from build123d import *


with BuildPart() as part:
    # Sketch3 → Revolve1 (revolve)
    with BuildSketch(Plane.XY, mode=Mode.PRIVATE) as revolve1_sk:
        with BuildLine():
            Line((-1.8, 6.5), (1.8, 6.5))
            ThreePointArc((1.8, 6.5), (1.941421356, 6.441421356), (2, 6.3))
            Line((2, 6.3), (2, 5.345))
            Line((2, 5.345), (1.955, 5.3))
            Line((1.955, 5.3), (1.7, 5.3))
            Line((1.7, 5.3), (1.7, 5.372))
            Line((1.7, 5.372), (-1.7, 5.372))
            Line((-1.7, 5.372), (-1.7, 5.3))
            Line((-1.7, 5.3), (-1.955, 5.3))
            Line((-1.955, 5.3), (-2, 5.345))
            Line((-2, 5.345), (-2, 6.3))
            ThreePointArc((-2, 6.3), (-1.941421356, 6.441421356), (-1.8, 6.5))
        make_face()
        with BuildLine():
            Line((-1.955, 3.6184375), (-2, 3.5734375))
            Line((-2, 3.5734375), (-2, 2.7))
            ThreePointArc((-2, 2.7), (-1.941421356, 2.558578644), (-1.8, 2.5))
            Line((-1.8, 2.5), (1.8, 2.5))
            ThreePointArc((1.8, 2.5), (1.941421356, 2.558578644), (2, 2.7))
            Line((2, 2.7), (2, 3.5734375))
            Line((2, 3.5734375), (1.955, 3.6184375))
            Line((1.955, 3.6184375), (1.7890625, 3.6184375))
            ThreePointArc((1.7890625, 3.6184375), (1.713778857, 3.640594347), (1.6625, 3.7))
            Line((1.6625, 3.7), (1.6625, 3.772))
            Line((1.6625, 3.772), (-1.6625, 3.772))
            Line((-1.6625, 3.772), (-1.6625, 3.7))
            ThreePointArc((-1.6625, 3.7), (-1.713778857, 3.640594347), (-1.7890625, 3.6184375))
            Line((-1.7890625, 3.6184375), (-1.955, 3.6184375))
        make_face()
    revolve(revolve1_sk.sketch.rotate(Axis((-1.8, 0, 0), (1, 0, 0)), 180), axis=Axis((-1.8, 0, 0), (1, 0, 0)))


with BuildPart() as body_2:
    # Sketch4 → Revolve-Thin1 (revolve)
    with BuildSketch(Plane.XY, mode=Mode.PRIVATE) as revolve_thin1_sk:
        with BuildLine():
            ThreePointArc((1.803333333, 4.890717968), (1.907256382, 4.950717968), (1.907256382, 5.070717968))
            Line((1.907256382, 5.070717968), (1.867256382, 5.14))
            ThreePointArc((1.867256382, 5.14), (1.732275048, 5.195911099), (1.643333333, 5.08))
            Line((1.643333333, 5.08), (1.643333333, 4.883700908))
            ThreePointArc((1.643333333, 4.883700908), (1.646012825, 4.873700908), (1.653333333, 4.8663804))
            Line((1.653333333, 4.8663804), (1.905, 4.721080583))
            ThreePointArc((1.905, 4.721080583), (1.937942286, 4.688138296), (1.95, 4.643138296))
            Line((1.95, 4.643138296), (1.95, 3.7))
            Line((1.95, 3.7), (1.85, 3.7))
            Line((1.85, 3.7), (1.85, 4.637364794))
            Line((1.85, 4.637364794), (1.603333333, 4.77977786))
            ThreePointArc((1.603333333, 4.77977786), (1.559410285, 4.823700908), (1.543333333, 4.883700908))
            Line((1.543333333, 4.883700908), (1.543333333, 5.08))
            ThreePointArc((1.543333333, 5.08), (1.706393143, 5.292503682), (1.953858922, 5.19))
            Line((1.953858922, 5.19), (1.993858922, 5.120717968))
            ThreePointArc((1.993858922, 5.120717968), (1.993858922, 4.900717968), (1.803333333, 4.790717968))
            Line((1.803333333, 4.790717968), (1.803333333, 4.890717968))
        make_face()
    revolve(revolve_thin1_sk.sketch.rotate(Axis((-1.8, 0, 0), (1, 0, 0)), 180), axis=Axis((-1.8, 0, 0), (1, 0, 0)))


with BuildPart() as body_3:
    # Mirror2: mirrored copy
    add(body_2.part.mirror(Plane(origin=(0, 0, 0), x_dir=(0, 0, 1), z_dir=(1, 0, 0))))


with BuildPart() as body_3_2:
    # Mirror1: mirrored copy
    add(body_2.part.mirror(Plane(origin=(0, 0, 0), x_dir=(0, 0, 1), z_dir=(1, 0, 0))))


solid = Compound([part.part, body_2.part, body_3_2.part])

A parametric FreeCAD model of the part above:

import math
import FreeCAD as App
import Part
import Sketcher
from FreeCAD import Vector
Q = App.Units.Quantity

doc = App.newDocument("Part")
body = doc.addObject("PartDesign::Body", "Body")
body.AllowCompound = True

# Sketch on XY plane
sketch1 = body.newObject("Sketcher::SketchObject", "Sketch")
sketch1.AttachmentSupport = (doc.getObject("XY_Plane"), [""])
sketch1.MapMode = "FlatFace"
sketch1.addGeometry(Part.LineSegment(Vector(1.8, 6.5, 0), Vector(-1.8, 6.5, 0)), False)
sketch1.addGeometry(Part.ArcOfCircle(Part.Circle(Vector(-1.8, 6.3, 0), Vector(0, 0, 1), 0.2), math.radians(90), math.radians(180)), False)
sketch1.addGeometry(Part.LineSegment(Vector(-2, 6.3, 0), Vector(-2, 5.345, 0)), False)
sketch1.addGeometry(Part.LineSegment(Vector(-2, 5.345, 0), Vector(-1.955, 5.3, 0)), False)
sketch1.addGeometry(Part.LineSegment(Vector(-1.955, 5.3, 0), Vector(-1.7, 5.3, 0)), False)
sketch1.addGeometry(Part.LineSegment(Vector(-1.7, 5.3, 0), Vector(-1.7, 5.372, 0)), False)
sketch1.addGeometry(Part.LineSegment(Vector(-1.7, 5.372, 0), Vector(1.7, 5.372, 0)), False)
sketch1.addGeometry(Part.LineSegment(Vector(1.7, 5.372, 0), Vector(1.7, 5.3, 0)), False)
sketch1.addGeometry(Part.LineSegment(Vector(1.7, 5.3, 0), Vector(1.955, 5.3, 0)), False)
sketch1.addGeometry(Part.LineSegment(Vector(1.955, 5.3, 0), Vector(2, 5.345, 0)), False)
sketch1.addGeometry(Part.LineSegment(Vector(2, 5.345, 0), Vector(2, 6.3, 0)), False)
sketch1.addGeometry(Part.ArcOfCircle(Part.Circle(Vector(1.8, 6.3, 0), Vector(0, 0, 1), 0.2), math.radians(0), math.radians(90)), False)
sketch1.addGeometry(Part.LineSegment(Vector(-1.955, 3.618438, 0), Vector(-2, 3.573437, 0)), False)
sketch1.addGeometry(Part.LineSegment(Vector(-2, 3.573437, 0), Vector(-2, 2.7, 0)), False)
sketch1.addGeometry(Part.ArcOfCircle(Part.Circle(Vector(-1.8, 2.7, 0), Vector(0, 0, 1), 0.2), math.radians(-180), math.radians(-90)), False)
sketch1.addGeometry(Part.LineSegment(Vector(-1.8, 2.5, 0), Vector(1.8, 2.5, 0)), False)
sketch1.addGeometry(Part.ArcOfCircle(Part.Circle(Vector(1.8, 2.7, 0), Vector(0, 0, 1), 0.2), math.radians(-90), math.radians(0)), False)
sketch1.addGeometry(Part.LineSegment(Vector(2, 2.7, 0), Vector(2, 3.573437, 0)), False)
sketch1.addGeometry(Part.LineSegment(Vector(2, 3.573437, 0), Vector(1.955, 3.618438, 0)), False)
sketch1.addGeometry(Part.LineSegment(Vector(1.955, 3.618438, 0), Vector(1.789062, 3.618438, 0)), False)
sketch1.addGeometry(Part.ArcOfCircle(Part.Circle(Vector(1.789063, 3.757414, 0), Vector(0, 0, 1), 0.138976), math.radians(-155.599062), math.radians(-90.000001)), False)
sketch1.addGeometry(Part.LineSegment(Vector(1.6625, 3.7, 0), Vector(1.6625, 3.772, 0)), False)
sketch1.addGeometry(Part.LineSegment(Vector(1.6625, 3.772, 0), Vector(-1.6625, 3.772, 0)), False)
sketch1.addGeometry(Part.LineSegment(Vector(-1.6625, 3.772, 0), Vector(-1.6625, 3.7, 0)), False)
sketch1.addGeometry(Part.ArcOfCircle(Part.Circle(Vector(-1.789063, 3.757414, 0), Vector(0, 0, 1), 0.138976), math.radians(-89.999999), math.radians(-24.400938)), False)
sketch1.addGeometry(Part.LineSegment(Vector(-1.789062, 3.618438, 0), Vector(-1.955, 3.618438, 0)), False)
sketch1.addConstraint(Sketcher.Constraint("Tangent", 0, 2, 1, 1))
sketch1.addConstraint(Sketcher.Constraint("Tangent", 1, 2, 2, 1))
sketch1.addConstraint(Sketcher.Constraint("Coincident", 2, 2, 3, 1))
sketch1.addConstraint(Sketcher.Constraint("Coincident", 3, 2, 4, 1))
sketch1.addConstraint(Sketcher.Constraint("Coincident", 4, 2, 5, 1))
sketch1.addConstraint(Sketcher.Constraint("Coincident", 5, 2, 6, 1))
sketch1.addConstraint(Sketcher.Constraint("Coincident", 6, 2, 7, 1))
sketch1.addConstraint(Sketcher.Constraint("Coincident", 7, 2, 8, 1))
sketch1.addConstraint(Sketcher.Constraint("Coincident", 8, 2, 9, 1))
sketch1.addConstraint(Sketcher.Constraint("Coincident", 9, 2, 10, 1))
sketch1.addConstraint(Sketcher.Constraint("Tangent", 10, 2, 11, 1))
sketch1.addConstraint(Sketcher.Constraint("Tangent", 11, 2, 0, 1))
sketch1.addConstraint(Sketcher.Constraint("Coincident", 12, 2, 13, 1))
sketch1.addConstraint(Sketcher.Constraint("Tangent", 13, 2, 14, 1))
sketch1.addConstraint(Sketcher.Constraint("Tangent", 14, 2, 15, 1))
sketch1.addConstraint(Sketcher.Constraint("Tangent", 15, 2, 16, 1))
sketch1.addConstraint(Sketcher.Constraint("Tangent", 16, 2, 17, 1))
sketch1.addConstraint(Sketcher.Constraint("Coincident", 17, 2, 18, 1))
sketch1.addConstraint(Sketcher.Constraint("Coincident", 18, 2, 19, 1))
sketch1.addConstraint(Sketcher.Constraint("Tangent", 19, 2, 20, 2))
sketch1.addConstraint(Sketcher.Constraint("Coincident", 20, 1, 21, 1))
sketch1.addConstraint(Sketcher.Constraint("Coincident", 21, 2, 22, 1))
sketch1.addConstraint(Sketcher.Constraint("Coincident", 22, 2, 23, 1))
sketch1.addConstraint(Sketcher.Constraint("Coincident", 23, 2, 24, 2))
sketch1.addConstraint(Sketcher.Constraint("Tangent", 24, 1, 25, 1))
sketch1.addConstraint(Sketcher.Constraint("Coincident", 25, 2, 12, 1))
sketch1.addConstraint(Sketcher.Constraint("Horizontal", 0))
sketch1.addConstraint(Sketcher.Constraint("Vertical", 2))
sketch1.addConstraint(Sketcher.Constraint("Horizontal", 4))
sketch1.addConstraint(Sketcher.Constraint("Vertical", 5))
sketch1.addConstraint(Sketcher.Constraint("Horizontal", 6))
sketch1.addConstraint(Sketcher.Constraint("Vertical", 7))
sketch1.addConstraint(Sketcher.Constraint("Horizontal", 8))
sketch1.addConstraint(Sketcher.Constraint("Vertical", 10))
sketch1.addConstraint(Sketcher.Constraint("Vertical", 13))
sketch1.addConstraint(Sketcher.Constraint("Horizontal", 15))
sketch1.addConstraint(Sketcher.Constraint("Vertical", 17))
sketch1.addConstraint(Sketcher.Constraint("Horizontal", 19))
sketch1.addConstraint(Sketcher.Constraint("Vertical", 21))
sketch1.addConstraint(Sketcher.Constraint("Horizontal", 22))
sketch1.addConstraint(Sketcher.Constraint("Vertical", 23))
sketch1.addConstraint(Sketcher.Constraint("Horizontal", 25))
sketch1.addConstraint(Sketcher.Constraint("Equal", 1, 11))
sketch1.addConstraint(Sketcher.Constraint("Equal", 11, 14))
sketch1.addConstraint(Sketcher.Constraint("Equal", 14, 16))
sketch1.addConstraint(Sketcher.Constraint("Equal", 20, 24))
sketch1.addConstraint(Sketcher.Constraint("Symmetric", 20, 3, 24, 3, -2))
sketch1.addConstraint(Sketcher.Constraint("Symmetric", 4, 2, 7, 2, -2))
sketch1.addConstraint(Sketcher.Constraint("Symmetric", 2, 2, 9, 2, -2))
sketch1.addConstraint(Sketcher.Constraint("Symmetric", 12, 2, 17, 2, -2))
sketch1.addConstraint(Sketcher.Constraint("Perpendicular", 3, 9))
sketch1.addConstraint(Sketcher.Constraint("Parallel", 9, 12))
sketch1.addConstraint(Sketcher.Constraint("Perpendicular", 12, 18))
sketch1.addConstraint(Sketcher.Constraint("Horizontal", 20, 1, 23, 2))
sketch1.addConstraint(Sketcher.Constraint("Vertical", 1, 3, 14, 3))
sketch1.addConstraint(Sketcher.Constraint("Vertical", 8, 2, 18, 2))
sketch1.addConstraint(Sketcher.Constraint("Vertical", 3, 2, 25, 2))
sketch1.addConstraint(Sketcher.Constraint("Equal", 7, 21))
sketch1.addConstraint(Sketcher.Constraint("Radius", 1, 0.2))
sketch1.addConstraint(Sketcher.Constraint("DistanceX", 0, 2, 0, 1, 3.6))
sketch1.addConstraint(Sketcher.Constraint("DistanceX", 6, 1, 6, 2, 3.4))
sketch1.addConstraint(Sketcher.Constraint("DistanceY", 3, 2, 1, 2, 1.0))
sketch1.addConstraint(Sketcher.Constraint("DistanceY", 16, 3, 20, 1, 1.0))
sketch1.addConstraint(Sketcher.Constraint("DistanceY", -1, 1, 1, 3, 6.3))
sketch1.addConstraint(Sketcher.Constraint("DistanceY", -1, 1, 14, 3, 2.7))
sketch1.addConstraint(Sketcher.Constraint("DistanceX", 4, 1, 4, 2, 0.255))
sketch1.addConstraint(Sketcher.Constraint("DistanceX", 22, 2, 22, 1, 3.325))
sketch1.addConstraint(Sketcher.Constraint("DistanceY", 5, 1, 5, 2, 0.072))
sketch1.addConstraint(Sketcher.Constraint("Radius", 20, 0.138976))
sketch1.addConstraint(Sketcher.Constraint("DistanceX", 19, 2, 19, 1, 0.165938))
revolution = body.newObject("PartDesign::Revolution", "Revolution")
revolution.Profile = sketch1
revolution.ReferenceAxis = (sketch1, ["H_Axis"])
revolution.Angle = 360
body2 = doc.addObject("PartDesign::Body", "Body001")

# Sketch on XY plane
sketch2 = body2.newObject("Sketcher::SketchObject", "Sketch001")
sketch2.AttachmentSupport = (doc.getObject("XY_Plane001"), [""])
sketch2.MapMode = "FlatFace"
sketch2.addGeometry(Part.ArcOfCircle(Part.Circle(Vector(1.803333, 5.010718, 0), Vector(0, 0, 1), 0.12), math.radians(-90), math.radians(30)), False)
sketch2.addGeometry(Part.LineSegment(Vector(1.803333, 4.890718, 0), Vector(1.803333, 4.790718, 0)), False)
sketch2.addGeometry(Part.ArcOfCircle(Part.Circle(Vector(1.803333, 5.010718, 0), Vector(0, 0, 1), 0.22), math.radians(-90), math.radians(30)), False)
sketch2.addGeometry(Part.LineSegment(Vector(1.993859, 5.120718, 0), Vector(1.953859, 5.19, 0)), False)
sketch2.addGeometry(Part.ArcOfCircle(Part.Circle(Vector(1.763333, 5.08, 0), Vector(0, 0, 1), 0.22), math.radians(30), math.radians(180)), False)
sketch2.addGeometry(Part.LineSegment(Vector(1.543333, 5.08, 0), Vector(1.543333, 4.883701, 0)), False)
sketch2.addGeometry(Part.ArcOfCircle(Part.Circle(Vector(1.663333, 4.883701, 0), Vector(0, 0, 1), 0.12), math.radians(-180), math.radians(-120)), False)
sketch2.addGeometry(Part.LineSegment(Vector(1.603333, 4.779778, 0), Vector(1.85, 4.637365, 0)), False)
sketch2.addGeometry(Part.LineSegment(Vector(1.85, 4.637365, 0), Vector(1.85, 3.7, 0)), False)
sketch2.addGeometry(Part.LineSegment(Vector(1.85, 3.7, 0), Vector(1.95, 3.7, 0)), False)
sketch2.addGeometry(Part.LineSegment(Vector(1.95, 3.7, 0), Vector(1.95, 4.643138, 0)), False)
sketch2.addGeometry(Part.ArcOfCircle(Part.Circle(Vector(1.86, 4.643138, 0), Vector(0, 0, 1), 0.09), math.radians(0.000001), math.radians(59.999999)), False)
sketch2.addGeometry(Part.LineSegment(Vector(1.905, 4.721081, 0), Vector(1.653333, 4.86638, 0)), False)
sketch2.addGeometry(Part.ArcOfCircle(Part.Circle(Vector(1.663333, 4.883701, 0), Vector(0, 0, 1), 0.02), math.radians(180), math.radians(240)), False)
sketch2.addGeometry(Part.LineSegment(Vector(1.643333, 4.883701, 0), Vector(1.643333, 5.08, 0)), False)
sketch2.addGeometry(Part.ArcOfCircle(Part.Circle(Vector(1.763333, 5.08, 0), Vector(0, 0, 1), 0.12), math.radians(30), math.radians(180)), False)
sketch2.addGeometry(Part.LineSegment(Vector(1.867256, 5.14, 0), Vector(1.907256, 5.070718, 0)), False)
sketch2.addConstraint(Sketcher.Constraint("Coincident", 0, 1, 1, 1))
sketch2.addConstraint(Sketcher.Constraint("Coincident", 1, 2, 2, 1))
sketch2.addConstraint(Sketcher.Constraint("Tangent", 2, 2, 3, 1))
sketch2.addConstraint(Sketcher.Constraint("Tangent", 3, 2, 4, 1))
sketch2.addConstraint(Sketcher.Constraint("Tangent", 4, 2, 5, 1))
sketch2.addConstraint(Sketcher.Constraint("Tangent", 5, 2, 6, 1))
sketch2.addConstraint(Sketcher.Constraint("Tangent", 6, 2, 7, 1))
sketch2.addConstraint(Sketcher.Constraint("Coincident", 7, 2, 8, 1))
sketch2.addConstraint(Sketcher.Constraint("Coincident", 8, 2, 9, 1))
sketch2.addConstraint(Sketcher.Constraint("Coincident", 9, 2, 10, 1))
sketch2.addConstraint(Sketcher.Constraint("Tangent", 10, 2, 11, 1))
sketch2.addConstraint(Sketcher.Constraint("Tangent", 11, 2, 12, 1))
sketch2.addConstraint(Sketcher.Constraint("Tangent", 12, 2, 13, 2))
sketch2.addConstraint(Sketcher.Constraint("Tangent", 13, 1, 14, 1))
sketch2.addConstraint(Sketcher.Constraint("Tangent", 14, 2, 15, 2))
sketch2.addConstraint(Sketcher.Constraint("Tangent", 15, 1, 16, 1))
sketch2.addConstraint(Sketcher.Constraint("Tangent", 16, 2, 0, 2))
sketch2.addConstraint(Sketcher.Constraint("Vertical", 1))
sketch2.addConstraint(Sketcher.Constraint("Vertical", 5))
sketch2.addConstraint(Sketcher.Constraint("Vertical", 8))
sketch2.addConstraint(Sketcher.Constraint("Horizontal", 9))
sketch2.addConstraint(Sketcher.Constraint("Vertical", 10))
sketch2.addConstraint(Sketcher.Constraint("Vertical", 14))
sketch2.addConstraint(Sketcher.Constraint("Coincident", 2, 3, 0, 3))
sketch2.addConstraint(Sketcher.Constraint("Coincident", 13, 3, 6, 3))
sketch2.addConstraint(Sketcher.Constraint("Coincident", 15, 3, 4, 3))
sketch2.addConstraint(Sketcher.Constraint("Equal", 2, 4))
sketch2.addConstraint(Sketcher.Constraint("Equal", 0, 6))
sketch2.addConstraint(Sketcher.Constraint("Equal", 6, 15))
sketch2.addConstraint(Sketcher.Constraint("Parallel", 7, 12))
sketch2.addConstraint(Sketcher.Constraint("Vertical", 2, 3, 0, 1))
sketch2.addConstraint(Sketcher.Constraint("Equal", 9, 1))
sketch2.addConstraint(Sketcher.Constraint("Angle", 3, Q("120 deg")))
sketch2.addConstraint(Sketcher.Constraint("Angle", 7, Q("-30 deg")))
sketch2.addConstraint(Sketcher.Constraint("Radius", 0, 0.12))
sketch2.addConstraint(Sketcher.Constraint("Radius", 2, 0.22))
sketch2.addConstraint(Sketcher.Constraint("Radius", 11, 0.09))
sketch2.addConstraint(Sketcher.Constraint("DistanceY", -1, 1, 8, 2, 3.7))
sketch2.addConstraint(Sketcher.Constraint("DistanceX", 6, 2, 1, 2, 0.2))
sketch2.addConstraint(Sketcher.Constraint("DistanceY", -1, 1, 4, 3, 5.08))
sketch2.addConstraint(Sketcher.Constraint("DistanceX", -1, 1, 11, 3, 1.86))
sketch2.addConstraint(Sketcher.Constraint("DistanceY", 5, 2, 5, 1, 0.196299))
sketch2.addConstraint(Sketcher.Constraint("Distance", 12, 0.2906))
revolution2 = body2.newObject("PartDesign::Revolution", "Revolution001")
revolution2.Profile = sketch2
revolution2.ReferenceAxis = (sketch2, ["H_Axis"])
revolution2.Angle = 360
body3 = doc.addObject("PartDesign::Body", "Body002")
doc.recompute()

mirroring = doc.addObject("Part::Mirroring", "Mirroring")
mirroring.Source = body2
mirroring.Base = Vector(0, 0, 0)
mirroring.Normal = Vector(1, 0, 0)
body3.BaseFeature = mirroring
doc.recompute()
body4 = doc.addObject("PartDesign::Body", "Body003")
doc.recompute()

mirroring2 = doc.addObject("Part::Mirroring", "Mirroring001")
mirroring2.Source = body2
mirroring2.Base = Vector(0, 0, 0)
mirroring2.Normal = Vector(1, 0, 0)
body4.BaseFeature = mirroring2
doc.recompute()
body3.Visibility = False
mirroring.Visibility = False
mirroring2.Visibility = False

doc.recompute()
